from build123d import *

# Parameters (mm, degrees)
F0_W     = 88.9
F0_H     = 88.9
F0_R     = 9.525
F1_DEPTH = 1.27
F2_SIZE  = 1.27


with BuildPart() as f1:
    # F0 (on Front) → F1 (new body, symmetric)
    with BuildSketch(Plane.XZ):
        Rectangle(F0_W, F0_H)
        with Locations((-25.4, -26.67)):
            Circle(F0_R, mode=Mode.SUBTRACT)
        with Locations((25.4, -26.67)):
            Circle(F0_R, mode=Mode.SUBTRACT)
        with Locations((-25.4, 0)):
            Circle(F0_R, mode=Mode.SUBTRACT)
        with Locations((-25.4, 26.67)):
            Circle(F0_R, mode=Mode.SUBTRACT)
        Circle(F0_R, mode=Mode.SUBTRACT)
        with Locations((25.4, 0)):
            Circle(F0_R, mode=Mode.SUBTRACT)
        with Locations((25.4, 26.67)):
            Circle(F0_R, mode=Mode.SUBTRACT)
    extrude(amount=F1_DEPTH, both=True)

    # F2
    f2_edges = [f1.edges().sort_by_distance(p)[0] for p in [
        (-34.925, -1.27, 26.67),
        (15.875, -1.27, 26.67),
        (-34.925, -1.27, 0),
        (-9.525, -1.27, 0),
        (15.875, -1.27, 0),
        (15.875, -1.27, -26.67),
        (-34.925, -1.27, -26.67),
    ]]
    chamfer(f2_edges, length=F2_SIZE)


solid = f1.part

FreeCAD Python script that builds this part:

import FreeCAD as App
import Part
import Sketcher
from FreeCAD import Vector
Q = App.Units.Quantity


def edges_at(feature, points):
    """Names of the edges that pass closest to the given points."""
    edges = feature.Shape.Edges
    near = lambda p: min(range(len(edges)), key=lambda i: edges[i].distToShape(Part.Vertex(*p))[0])
    return sorted({f"Edge{near(p) + 1}" for p in points})

doc = App.newDocument("Part")
params = doc.addObject("Spreadsheet::Sheet", "Params")
for row, (alias, value) in enumerate([
    ("sketch1_diameter", "0.75 in"),
    ("sketch1_width", "3.5 in"),
    ("pad1_length", "0.1 in"),
    ("chamfer_size", "0.05 in"),
], start=1):
    params.set(f"A{row}", alias)
    params.set(f"B{row}", "=" + value)
    params.setAlias(f"B{row}", alias)

body = doc.addObject("PartDesign::Body", "Body")

# Sketch on XZ plane
sketch1 = doc.addObject("Sketcher::SketchObject", "Sketch")
body.addObject(sketch1)
sketch1.AttachmentSupport = (doc.XZ_Plane, [""])
sketch1.MapMode = "FlatFace"
sketch1.addGeometry(Part.LineSegment(Vector(-44, 44, 0), Vector(-44, -44, 0)), False)
sketch1.addGeometry(Part.LineSegment(Vector(-44, -44, 0), Vector(44, -44, 0)), False)
sketch1.addGeometry(Part.LineSegment(Vector(44, -44, 0), Vector(44, 44, 0)), False)
sketch1.addGeometry(Part.LineSegment(Vector(44, 44, 0), Vector(-44, 44, 0)), False)
sketch1.addGeometry(Part.Circle(Vector(-25, -27, 0), Vector(0, 0, 1), 10), False)
sketch1.addGeometry(Part.Circle(Vector(25, -27, 0), Vector(0, 0, 1), 10), False)
sketch1.addGeometry(Part.Circle(Vector(-25, 0, 0), Vector(0, 0, 1), 10), False)
sketch1.addGeometry(Part.Circle(Vector(-25, 27, 0), Vector(0, 0, 1), 10), False)
sketch1.addGeometry(Part.Circle(Vector(0, 0, 0), Vector(0, 0, 1), 10), False)
sketch1.addGeometry(Part.Circle(Vector(25, 0, 0), Vector(0, 0, 1), 10), False)
sketch1.addGeometry(Part.Circle(Vector(25, 27, 0), Vector(0, 0, 1), 10), False)
sketch1.addConstraint(Sketcher.Constraint("Coincident", 0, 2, 1, 1))
sketch1.addConstraint(Sketcher.Constraint("Coincident", 1, 2, 2, 1))
sketch1.addConstraint(Sketcher.Constraint("Coincident", 2, 2, 3, 1))
sketch1.addConstraint(Sketcher.Constraint("Coincident", 3, 2, 0, 1))
sketch1.addConstraint(Sketcher.Constraint("Vertical", 0))
sketch1.addConstraint(Sketcher.Constraint("Horizontal", 1))
sketch1.addConstraint(Sketcher.Constraint("Vertical", 2))
sketch1.addConstraint(Sketcher.Constraint("Horizontal", 3))
sketch1.addConstraint(Sketcher.Constraint("Coincident", 8, 3, -1, 1))
sketch1.addConstraint(Sketcher.Constraint("Equal", 4, 5))
sketch1.addConstraint(Sketcher.Constraint("Equal", 5, 6))
sketch1.addConstraint(Sketcher.Constraint("Equal", 6, 7))
sketch1.addConstraint(Sketcher.Constraint("Equal", 7, 8))
sketch1.addConstraint(Sketcher.Constraint("Equal", 8, 9))
sketch1.addConstraint(Sketcher.Constraint("Equal", 9, 10))
sketch1.addConstraint(Sketcher.Constraint("Symmetric", 5, 3, 7, 3, -1, 1))
sketch1.addConstraint(Sketcher.Constraint("Symmetric", 6, 3, 9, 3, -1, 1))
sketch1.addConstraint(Sketcher.Constraint("Symmetric", 4, 3, 10, 3, -1, 1))
sketch1.addConstraint(Sketcher.Constraint("Symmetric", 0, 2, 2, 2, -1, 1))
sketch1.addConstraint(Sketcher.Constraint("Symmetric", 4, 3, 5, 3, -2))
sketch1.addConstraint(Sketcher.Constraint("PointOnObject", 6, 3, -1))
sketch1.addConstraint(Sketcher.Constraint("Vertical", 4, 3, 6, 3))
sketch1.addConstraint(Sketcher.Constraint("Equal", 3, 0))
sketch1.addConstraint(Sketcher.Constraint("Diameter", 4, Q("0.75 in")))
sketch1.addConstraint(Sketcher.Constraint("DistanceX", 1, 1, 1, 2, Q("3.5 in")))
sketch1.addConstraint(Sketcher.Constraint("DistanceX", 4, 3, -1, 1, Q("1 in")))
sketch1.addConstraint(Sketcher.Constraint("DistanceY", 4, 3, 7, 3, Q("2.1 in")))
sketch1.setExpression("Constraints[23]", "Params.sketch1_diameter")
sketch1.setExpression("Constraints[24]", "Params.sketch1_width")
pad1 = doc.addObject("PartDesign::Pad", "Pad")
body.addObject(pad1)
pad1.Profile = sketch1
pad1.setExpression("Length", "Params.pad1_length")
pad1.Midplane = True
doc.recompute()

chamfer = doc.addObject("PartDesign::Chamfer", "Chamfer")
body.addObject(chamfer)
chamfer.Base = (pad1, edges_at(pad1, [
    (-34.925, -1.27, 26.67),
    (15.875, -1.27, 26.67),
    (-34.925, -1.27, 0),
    (-9.525, -1.27, 0),
    (15.875, -1.27, 0),
    (15.875, -1.27, -26.67),
    (-34.925, -1.27, -26.67),
]))
chamfer.setExpression("Size", "Params.chamfer_size")

doc.recompute()
